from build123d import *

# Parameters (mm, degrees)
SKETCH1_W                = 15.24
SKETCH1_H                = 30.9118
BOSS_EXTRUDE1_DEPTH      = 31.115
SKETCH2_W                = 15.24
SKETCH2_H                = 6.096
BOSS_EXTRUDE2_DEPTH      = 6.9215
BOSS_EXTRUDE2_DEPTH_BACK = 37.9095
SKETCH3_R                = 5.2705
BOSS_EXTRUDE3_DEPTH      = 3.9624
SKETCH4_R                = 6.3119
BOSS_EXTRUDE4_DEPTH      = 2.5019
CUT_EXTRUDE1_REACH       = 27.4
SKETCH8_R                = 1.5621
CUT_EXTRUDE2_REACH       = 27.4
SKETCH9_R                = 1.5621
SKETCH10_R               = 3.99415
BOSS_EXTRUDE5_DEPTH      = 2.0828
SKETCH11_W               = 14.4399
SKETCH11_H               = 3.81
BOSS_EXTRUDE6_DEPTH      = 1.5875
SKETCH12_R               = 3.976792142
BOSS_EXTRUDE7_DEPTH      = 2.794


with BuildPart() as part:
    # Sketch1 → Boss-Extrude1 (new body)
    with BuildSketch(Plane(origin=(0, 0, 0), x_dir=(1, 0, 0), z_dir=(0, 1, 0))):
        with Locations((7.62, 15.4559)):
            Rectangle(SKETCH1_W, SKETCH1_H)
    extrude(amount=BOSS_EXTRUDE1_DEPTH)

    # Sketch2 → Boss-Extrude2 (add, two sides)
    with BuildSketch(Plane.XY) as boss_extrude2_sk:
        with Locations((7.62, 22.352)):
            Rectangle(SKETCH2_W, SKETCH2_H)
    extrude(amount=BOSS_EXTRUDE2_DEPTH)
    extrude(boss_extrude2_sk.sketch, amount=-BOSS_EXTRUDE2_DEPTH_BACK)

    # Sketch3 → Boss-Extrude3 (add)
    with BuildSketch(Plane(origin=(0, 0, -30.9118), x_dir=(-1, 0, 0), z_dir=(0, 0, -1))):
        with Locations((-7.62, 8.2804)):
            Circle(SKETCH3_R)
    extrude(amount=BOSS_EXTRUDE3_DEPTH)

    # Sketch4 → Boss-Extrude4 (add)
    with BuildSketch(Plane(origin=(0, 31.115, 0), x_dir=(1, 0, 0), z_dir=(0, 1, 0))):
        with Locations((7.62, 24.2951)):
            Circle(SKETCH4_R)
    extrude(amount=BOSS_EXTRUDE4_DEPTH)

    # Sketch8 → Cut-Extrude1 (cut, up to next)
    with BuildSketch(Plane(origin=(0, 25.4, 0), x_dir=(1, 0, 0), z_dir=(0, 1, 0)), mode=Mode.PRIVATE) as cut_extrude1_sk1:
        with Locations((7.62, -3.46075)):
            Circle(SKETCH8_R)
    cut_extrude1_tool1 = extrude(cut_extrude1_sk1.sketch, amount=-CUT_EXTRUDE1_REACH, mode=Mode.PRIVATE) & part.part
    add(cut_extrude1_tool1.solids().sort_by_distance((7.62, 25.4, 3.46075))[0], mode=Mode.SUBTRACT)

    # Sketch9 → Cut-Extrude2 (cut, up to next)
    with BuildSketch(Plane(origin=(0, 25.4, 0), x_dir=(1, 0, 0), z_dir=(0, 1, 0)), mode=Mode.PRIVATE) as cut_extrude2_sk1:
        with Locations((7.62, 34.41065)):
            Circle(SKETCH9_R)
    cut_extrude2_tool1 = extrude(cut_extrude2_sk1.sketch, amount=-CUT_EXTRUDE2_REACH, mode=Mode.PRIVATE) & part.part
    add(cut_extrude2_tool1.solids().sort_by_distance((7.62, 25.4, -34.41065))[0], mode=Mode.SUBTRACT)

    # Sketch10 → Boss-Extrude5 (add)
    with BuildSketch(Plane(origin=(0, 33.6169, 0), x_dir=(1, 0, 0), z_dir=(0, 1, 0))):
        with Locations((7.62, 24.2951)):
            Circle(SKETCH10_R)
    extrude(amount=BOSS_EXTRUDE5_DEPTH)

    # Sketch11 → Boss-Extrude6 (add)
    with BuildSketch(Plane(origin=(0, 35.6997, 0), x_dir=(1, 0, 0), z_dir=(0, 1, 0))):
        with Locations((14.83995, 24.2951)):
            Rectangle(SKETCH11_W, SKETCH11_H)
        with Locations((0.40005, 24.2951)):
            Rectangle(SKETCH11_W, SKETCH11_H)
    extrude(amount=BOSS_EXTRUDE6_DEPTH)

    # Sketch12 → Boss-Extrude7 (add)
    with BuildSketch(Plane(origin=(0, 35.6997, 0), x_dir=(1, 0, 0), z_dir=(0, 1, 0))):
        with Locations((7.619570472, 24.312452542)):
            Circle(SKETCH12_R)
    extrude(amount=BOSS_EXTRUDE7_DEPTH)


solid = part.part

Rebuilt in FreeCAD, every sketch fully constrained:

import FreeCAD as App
import Part
import Sketcher
Q = App.Units.Quantity


def add_polygon(sketch, points):
    """Adds a closed chain of lines whose ends are joined by coincident constraints."""
    first, n = sketch.GeometryCount, len(points)
    for a, b in zip(points, points[1:] + points[:1]):
        sketch.addGeometry(Part.LineSegment(App.Vector(*a, 0), App.Vector(*b, 0)), False)
    for i in range(n):
        sketch.addConstraint(Sketcher.Constraint("Coincident", first + i, 2, first + (i + 1) % n, 1))

doc = App.newDocument("Part")
body = doc.addObject("PartDesign::Body", "Body")

# Sketch on XZ plane
sketch1 = body.newObject("Sketcher::SketchObject", "Sketch")
sketch1.AttachmentSupport = (doc.getObject("XZ_Plane"), [""])
sketch1.MapMode = "FlatFace"
add_polygon(sketch1, [(0, -31), (0, 0), (15, 0), (15, -31)])  # lines 0-3
sketch1.addConstraint([
    Sketcher.Constraint("Vertical", 0),
    Sketcher.Constraint("Horizontal", 1),
    Sketcher.Constraint("Vertical", 2),
    Sketcher.Constraint("Horizontal", 3),
    Sketcher.Constraint("Coincident", 0, 2, -1, 1),
    Sketcher.Constraint("DistanceX", 1, 1, 1, 2, Q("0.6 in")),
    Sketcher.Constraint("DistanceY", 0, 1, 0, 2, Q("1.217 in")),
])
pad1 = body.newObject("PartDesign::Pad", "Pad")
pad1.Profile = sketch1
pad1.Length = Q("1.225 in")
pad1.Reversed = True

# Sketch on XY plane
sketch2 = body.newObject("Sketcher::SketchObject", "Sketch001")
sketch2.AttachmentSupport = (doc.getObject("XY_Plane"), [""])
sketch2.MapMode = "FlatFace"
add_polygon(sketch2, [(0, 25), (0, 19), (15, 19), (15, 25)])  # lines 0-3
sketch2.addConstraint([
    Sketcher.Constraint("Vertical", 0),
    Sketcher.Constraint("Horizontal", 1),
    Sketcher.Constraint("Vertical", 2),
    Sketcher.Constraint("Horizontal", 3),
    Sketcher.Constraint("PointOnObject", 0, 2, -2),
    Sketcher.Constraint("DistanceX", 1, 1, 1, 2, Q("0.6 in")),
    Sketcher.Constraint("DistanceY", -1, 1, 2, 2, Q("1 in")),
    Sketcher.Constraint("DistanceY", 0, 2, 0, 1, Q("0.24 in")),
])
pad2 = body.newObject("PartDesign::Pad", "Pad001")
pad2.Profile = sketch2
pad2.Type = "TwoLengths"
pad2.Length = Q("0.2725 in")
pad2.Length2 = Q("1.4925 in")

# Sketch on XY plane
sketch3 = body.newObject("Sketcher::SketchObject", "Sketch002")
sketch3.AttachmentSupport = (doc.getObject("XY_Plane"), [""])
sketch3.MapMode = "FlatFace"
sketch3.AttachmentOffset = App.Placement(App.Vector(0, 0, -1.217 * 25.4), App.Rotation())
sketch3.addGeometry(Part.Circle(App.Vector(8, 8, 0), App.Vector(0, 0, 1), 5), False)
sketch3.addConstraint([
    Sketcher.Constraint("Diameter", 0, Q("0.415 in")),
    Sketcher.Constraint("DistanceX", -1, 1, 0, 3, Q("0.3 in")),
    Sketcher.Constraint("DistanceY", -1, 1, 0, 3, Q("0.326 in")),
])
pad3 = body.newObject("PartDesign::Pad", "Pad002")
pad3.Profile = sketch3
pad3.Length = Q("0.156 in")
pad3.Reversed = True

# Sketch on XZ plane
sketch4 = body.newObject("Sketcher::SketchObject", "Sketch003")
sketch4.AttachmentSupport = (doc.getObject("XZ_Plane"), [""])
sketch4.MapMode = "FlatFace"
sketch4.AttachmentOffset = App.Placement(App.Vector(0, 0, -1.225 * 25.4), App.Rotation())
sketch4.addGeometry(Part.Circle(App.Vector(8, -24, 0), App.Vector(0, 0, 1), 6), False)
sketch4.addConstraint([
    Sketcher.Constraint("Diameter", 0, Q("0.497 in")),
    Sketcher.Constraint("DistanceX", -1, 1, 0, 3, Q("0.3 in")),
    Sketcher.Constraint("DistanceY", 0, 3, -1, 1, Q("0.9565 in")),
])
pad4 = body.newObject("PartDesign::Pad", "Pad003")
pad4.Profile = sketch4
pad4.Length = Q("0.0985 in")
pad4.Reversed = True

# Sketch on XZ plane
sketch5 = body.newObject("Sketcher::SketchObject", "Sketch004")
sketch5.AttachmentSupport = (doc.getObject("XZ_Plane"), [""])
sketch5.MapMode = "FlatFace"
sketch5.AttachmentOffset = App.Placement(App.Vector(0, 0, -1 * 25.4), App.Rotation())
sketch5.addGeometry(Part.Circle(App.Vector(7.6, 3.5, 0), App.Vector(0, 0, 1), 1.6), False)
sketch5.addConstraint([
    Sketcher.Constraint("Diameter", 0, Q("0.123 in")),
    Sketcher.Constraint("DistanceX", -1, 1, 0, 3, Q("0.3 in")),
    Sketcher.Constraint("DistanceY", -1, 1, 0, 3, Q("3.46075 mm")),
])
pocket1 = body.newObject("PartDesign::Pocket", "Pocket")
pocket1.Profile = sketch5
pocket1.Type = "UpToFirst"
pocket1.Reversed = True

# Sketch on XZ plane
sketch6 = body.newObject("Sketcher::SketchObject", "Sketch005")
sketch6.AttachmentSupport = (doc.getObject("XZ_Plane"), [""])
sketch6.MapMode = "FlatFace"
sketch6.AttachmentOffset = App.Placement(App.Vector(0, 0, -1 * 25.4), App.Rotation())
sketch6.addGeometry(Part.Circle(App.Vector(7.6, -34.4, 0), App.Vector(0, 0, 1), 1.6), False)
sketch6.addConstraint([
    Sketcher.Constraint("Diameter", 0, Q("0.123 in")),
    Sketcher.Constraint("DistanceX", -1, 1, 0, 3, Q("0.3 in")),
    Sketcher.Constraint("DistanceY", 0, 3, -1, 1, Q("34.41065 mm")),
])
pocket2 = body.newObject("PartDesign::Pocket", "Pocket001")
pocket2.Profile = sketch6
pocket2.Type = "UpToFirst"
pocket2.Reversed = True

# Sketch on XZ plane
sketch7 = body.newObject("Sketcher::SketchObject", "Sketch006")
sketch7.AttachmentSupport = (doc.getObject("XZ_Plane"), [""])
sketch7.MapMode = "FlatFace"
sketch7.AttachmentOffset = App.Placement(App.Vector(0, 0, -1.3235 * 25.4), App.Rotation())
sketch7.addGeometry(Part.Circle(App.Vector(7.6, -24.3, 0), App.Vector(0, 0, 1), 4), False)
sketch7.addConstraint([
    Sketcher.Constraint("Diameter", 0, Q("0.3145 in")),
    Sketcher.Constraint("DistanceX", -1, 1, 0, 3, Q("0.3 in")),
    Sketcher.Constraint("DistanceY", 0, 3, -1, 1, Q("0.9565 in")),
])
pad5 = body.newObject("PartDesign::Pad", "Pad004")
pad5.Profile = sketch7
pad5.Length = Q("0.082 in")
pad5.Reversed = True

# Sketch on XZ plane
sketch8 = body.newObject("Sketcher::SketchObject", "Sketch007")
sketch8.AttachmentSupport = (doc.getObject("XZ_Plane"), [""])
sketch8.MapMode = "FlatFace"
sketch8.AttachmentOffset = App.Placement(App.Vector(0, 0, -1.4055 * 25.4), App.Rotation())
add_polygon(sketch8, [(22.1, -22.4), (22.1, -26.2), (-6.8, -26.2), (-6.8, -22.4)])  # lines 0-3
sketch8.addConstraint([
    Sketcher.Constraint("Vertical", 0),
    Sketcher.Constraint("Horizontal", 1),
    Sketcher.Constraint("Vertical", 2),
    Sketcher.Constraint("Horizontal", 3),
    Sketcher.Constraint("DistanceY", 0, 2, 0, 1, Q("0.15 in")),
    Sketcher.Constraint("DistanceX", 1, 2, 1, 1, Q("1.137 in")),
    Sketcher.Constraint("DistanceX", -1, 1, 0, 2, Q("0.8685 in")),
    Sketcher.Constraint("DistanceY", 0, 2, -1, 1, Q("1.0315 in")),
])
pad6 = body.newObject("PartDesign::Pad", "Pad005")
pad6.Profile = sketch8
pad6.Length = Q("0.0625 in")
pad6.Reversed = True

# Sketch on XZ plane
sketch9 = body.newObject("Sketcher::SketchObject", "Sketch008")
sketch9.AttachmentSupport = (doc.getObject("XZ_Plane"), [""])
sketch9.MapMode = "FlatFace"
sketch9.AttachmentOffset = App.Placement(App.Vector(0, 0, -1.4055 * 25.4), App.Rotation())
sketch9.addGeometry(Part.Circle(App.Vector(7.6, -24.3, 0), App.Vector(0, 0, 1), 4), False)
sketch9.addConstraint([
    Sketcher.Constraint("Diameter", 0, Q("7.953584 mm")),
    Sketcher.Constraint("DistanceX", -1, 1, 0, 3, Q("7.61957 mm")),
    Sketcher.Constraint("DistanceY", 0, 3, -1, 1, Q("24.312453 mm")),
])
pad7 = body.newObject("PartDesign::Pad", "Pad006")
pad7.Profile = sketch9
pad7.Length = Q("0.11 in")
pad7.Reversed = True

doc.recompute()
